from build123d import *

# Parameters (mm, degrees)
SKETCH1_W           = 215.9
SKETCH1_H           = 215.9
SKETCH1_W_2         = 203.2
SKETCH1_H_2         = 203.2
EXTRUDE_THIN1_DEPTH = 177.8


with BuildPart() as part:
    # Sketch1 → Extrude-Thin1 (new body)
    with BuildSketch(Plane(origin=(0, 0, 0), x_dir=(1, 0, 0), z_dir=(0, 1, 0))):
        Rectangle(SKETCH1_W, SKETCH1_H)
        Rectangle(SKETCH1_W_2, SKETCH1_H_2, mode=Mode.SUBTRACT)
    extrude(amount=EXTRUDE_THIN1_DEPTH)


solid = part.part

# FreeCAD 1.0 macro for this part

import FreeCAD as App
import Part
import Sketcher
Q = App.Units.Quantity


def add_polygon(sketch, points):
    """Adds a closed chain of lines whose ends are joined by coincident constraints."""
    first, n = sketch.GeometryCount, len(points)
    for a, b in zip(points, points[1:] + points[:1]):
        sketch.addGeometry(Part.LineSegment(App.Vector(*a, 0), App.Vector(*b, 0)), False)
    for i in range(n):
        sketch.addConstraint(Sketcher.Constraint("Coincident", first + i, 2, first + (i + 1) % n, 1))

doc = App.newDocument("Part")
params = doc.addObject("Spreadsheet::Sheet", "Params")
for row, (alias, value) in enumerate([
    ("sketch1_width", "8 in"),
    ("sketch1_width2", "8.5 in"),
    ("pad1_length", "7 in"),
], start=1):
    params.set(f"A{row}", alias)
    params.set(f"B{row}", "=" + value)
    params.setAlias(f"B{row}", alias)

body = doc.addObject("PartDesign::Body", "Body")

sketch1 = doc.addObject("Sketcher::SketchObject", "Sketch")
body.addObject(sketch1)
sketch1.AttachmentSupport = (doc.XZ_Plane, [""])
sketch1.MapMode = "FlatFace"
add_polygon(sketch1, [(-108, -108), (-108, 108), (108, 108), (108, -108)])
add_polygon(sketch1, [(102, 102), (-102, 102), (-102, -102), (102, -102)])
sketch1.addConstraint([
    Sketcher.Constraint("Vertical", 0),
    Sketcher.Constraint("Horizontal", 1),
    Sketcher.Constraint("Vertical", 2),
    Sketcher.Constraint("Horizontal", 3),
    Sketcher.Constraint("Horizontal", 4),
    Sketcher.Constraint("Vertical", 5),
    Sketcher.Constraint("Horizontal", 6),
    Sketcher.Constraint("Vertical", 7),
    Sketcher.Constraint("Symmetric", 0, 2, 2, 2, -1, 1),
    Sketcher.Constraint("Symmetric", 4, 2, 6, 2, -1, 1),
    Sketcher.Constraint("Equal", 3, 0),
    Sketcher.Constraint("Equal", 6, 5),
    Sketcher.Constraint("DistanceX", 4, 2, 4, 1, Q("8 in")),
    Sketcher.Constraint("DistanceX", 1, 1, 1, 2, Q("8.5 in")),
])
sketch1.setExpression("Constraints[20]", "Params.sketch1_width")
sketch1.setExpression("Constraints[21]", "Params.sketch1_width2")
pad1 = doc.addObject("PartDesign::Pad", "Pad")
body.addObject(pad1)
pad1.Profile = sketch1
pad1.setExpression("Length", "Params.pad1_length")
pad1.Reversed = True

doc.recompute()
